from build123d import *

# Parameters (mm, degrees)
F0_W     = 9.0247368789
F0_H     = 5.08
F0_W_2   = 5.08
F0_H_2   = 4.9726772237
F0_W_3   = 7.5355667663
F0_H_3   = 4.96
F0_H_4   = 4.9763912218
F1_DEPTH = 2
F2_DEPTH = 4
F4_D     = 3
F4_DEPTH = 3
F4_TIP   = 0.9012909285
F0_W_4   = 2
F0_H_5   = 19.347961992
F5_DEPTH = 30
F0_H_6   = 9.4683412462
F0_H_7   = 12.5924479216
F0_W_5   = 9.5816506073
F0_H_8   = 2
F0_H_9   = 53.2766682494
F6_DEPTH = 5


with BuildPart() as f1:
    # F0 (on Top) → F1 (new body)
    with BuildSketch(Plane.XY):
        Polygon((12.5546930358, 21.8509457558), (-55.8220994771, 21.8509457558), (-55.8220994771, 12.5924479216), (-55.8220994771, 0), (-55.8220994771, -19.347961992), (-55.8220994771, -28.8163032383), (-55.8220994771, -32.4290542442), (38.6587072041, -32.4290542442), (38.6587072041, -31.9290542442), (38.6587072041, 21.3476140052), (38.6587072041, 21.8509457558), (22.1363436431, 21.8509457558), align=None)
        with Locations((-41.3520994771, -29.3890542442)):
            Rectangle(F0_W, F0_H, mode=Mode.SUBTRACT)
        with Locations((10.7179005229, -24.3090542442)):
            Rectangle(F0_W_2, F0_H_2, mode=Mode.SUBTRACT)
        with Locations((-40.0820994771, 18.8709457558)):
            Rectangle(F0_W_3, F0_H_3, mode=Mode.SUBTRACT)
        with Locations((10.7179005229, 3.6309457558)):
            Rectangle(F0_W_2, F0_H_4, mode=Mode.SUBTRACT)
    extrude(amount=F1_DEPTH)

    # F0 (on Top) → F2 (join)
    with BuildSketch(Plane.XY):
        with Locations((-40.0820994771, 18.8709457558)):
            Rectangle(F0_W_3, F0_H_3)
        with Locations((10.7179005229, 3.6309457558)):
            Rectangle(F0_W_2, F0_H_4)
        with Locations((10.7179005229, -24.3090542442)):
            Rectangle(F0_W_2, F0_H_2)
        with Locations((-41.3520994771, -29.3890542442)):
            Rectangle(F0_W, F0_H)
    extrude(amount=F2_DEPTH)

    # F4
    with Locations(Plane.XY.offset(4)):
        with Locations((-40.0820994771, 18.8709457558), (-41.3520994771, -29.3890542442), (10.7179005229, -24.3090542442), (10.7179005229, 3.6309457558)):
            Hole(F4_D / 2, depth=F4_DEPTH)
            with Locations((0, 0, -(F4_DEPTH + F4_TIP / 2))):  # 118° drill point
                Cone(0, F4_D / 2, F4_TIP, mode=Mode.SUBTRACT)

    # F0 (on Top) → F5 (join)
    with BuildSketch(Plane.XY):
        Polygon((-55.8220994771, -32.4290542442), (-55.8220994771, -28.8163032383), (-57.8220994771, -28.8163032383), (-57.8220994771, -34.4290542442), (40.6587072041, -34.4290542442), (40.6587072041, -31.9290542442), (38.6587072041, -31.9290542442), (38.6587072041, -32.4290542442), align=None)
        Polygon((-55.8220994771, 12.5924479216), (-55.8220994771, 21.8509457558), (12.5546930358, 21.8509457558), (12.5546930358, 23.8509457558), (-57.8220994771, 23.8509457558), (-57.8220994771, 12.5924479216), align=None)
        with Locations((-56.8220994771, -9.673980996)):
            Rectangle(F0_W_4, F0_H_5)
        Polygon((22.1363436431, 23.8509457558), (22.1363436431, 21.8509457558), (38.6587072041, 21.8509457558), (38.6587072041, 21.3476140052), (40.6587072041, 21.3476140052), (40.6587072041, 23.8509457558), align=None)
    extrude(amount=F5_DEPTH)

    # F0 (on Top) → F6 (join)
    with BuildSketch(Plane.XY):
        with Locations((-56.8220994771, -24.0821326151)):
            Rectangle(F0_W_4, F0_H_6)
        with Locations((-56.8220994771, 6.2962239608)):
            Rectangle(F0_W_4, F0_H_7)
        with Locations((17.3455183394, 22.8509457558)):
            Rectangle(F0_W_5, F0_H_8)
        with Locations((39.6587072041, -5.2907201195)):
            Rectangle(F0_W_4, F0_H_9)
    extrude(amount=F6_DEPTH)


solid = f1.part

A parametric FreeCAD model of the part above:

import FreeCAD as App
import Part
import Sketcher

V = App.Vector

doc = App.newDocument("Part")
body = doc.addObject("PartDesign::Body", "Body")

# Sketch on XY plane
sketch1 = body.newObject("Sketcher::SketchObject", "Sketch")
sketch1.AttachmentSupport = (doc.getObject("XY_Plane"), [""])
sketch1.MapMode = "FlatFace"
sketch1.addGeometry([
    Part.LineSegment(V(-55.822099, 21.850946, 0), V(-55.822099, -32.429054, 0)),  # 0
    Part.LineSegment(V(-55.822099, -32.429054, 0), V(38.658707, -32.429054, 0)),  # 1
    Part.LineSegment(V(38.658707, -32.429054, 0), V(38.658707, 21.850946, 0)),  # 2
    Part.LineSegment(V(38.658707, 21.850946, 0), V(-55.822099, 21.850946, 0)),  # 3
    Part.LineSegment(V(-36.839731, -31.929054, 0), V(-45.864468, -31.929054, 0)),  # 4
    Part.LineSegment(V(-45.864468, -31.929054, 0), V(-45.864468, -26.849054, 0)),  # 5
    Part.LineSegment(V(-45.864468, -26.849054, 0), V(-36.839731, -26.849054, 0)),  # 6
    Part.LineSegment(V(-36.839731, -26.849054, 0), V(-36.839731, -31.929054, 0)),  # 7
    Part.LineSegment(V(13.257901, -26.795393, 0), V(8.177901, -26.795393, 0)),  # 8
    Part.LineSegment(V(8.177901, -26.795393, 0), V(8.177901, -21.822716, 0)),  # 9
    Part.LineSegment(V(8.177901, -21.822716, 0), V(13.257901, -21.822716, 0)),  # 10
    Part.LineSegment(V(13.257901, -21.822716, 0), V(13.257901, -26.795393, 0)),  # 11
    Part.LineSegment(V(-36.314316, 16.390946, 0), V(-43.849883, 16.390946, 0)),  # 12
    Part.LineSegment(V(-43.849883, 16.390946, 0), V(-43.849883, 21.350946, 0)),  # 13
    Part.LineSegment(V(-43.849883, 21.350946, 0), V(-36.314316, 21.350946, 0)),  # 14
    Part.LineSegment(V(-36.314316, 21.350946, 0), V(-36.314316, 16.390946, 0)),  # 15
    Part.LineSegment(V(13.257901, 1.14275, 0), V(8.177901, 1.14275, 0)),  # 16
    Part.LineSegment(V(8.177901, 1.14275, 0), V(8.177901, 6.119141, 0)),  # 17
    Part.LineSegment(V(8.177901, 6.119141, 0), V(13.257901, 6.119141, 0)),  # 18
    Part.LineSegment(V(13.257901, 6.119141, 0), V(13.257901, 1.14275, 0)),  # 19
], False)
sketch1.addConstraint([
    Sketcher.Constraint("Coincident", 0, 2, 1, 1),
    Sketcher.Constraint("Coincident", 1, 2, 2, 1),
    Sketcher.Constraint("Coincident", 2, 2, 3, 1),
    Sketcher.Constraint("Coincident", 3, 2, 0, 1),
    Sketcher.Constraint("Coincident", 4, 2, 5, 1),
    Sketcher.Constraint("Coincident", 5, 2, 6, 1),
    Sketcher.Constraint("Coincident", 6, 2, 7, 1),
    Sketcher.Constraint("Coincident", 7, 2, 4, 1),
    Sketcher.Constraint("Coincident", 8, 2, 9, 1),
    Sketcher.Constraint("Coincident", 9, 2, 10, 1),
    Sketcher.Constraint("Coincident", 10, 2, 11, 1),
    Sketcher.Constraint("Coincident", 11, 2, 8, 1),
    Sketcher.Constraint("Coincident", 12, 2, 13, 1),
    Sketcher.Constraint("Coincident", 13, 2, 14, 1),
    Sketcher.Constraint("Coincident", 14, 2, 15, 1),
    Sketcher.Constraint("Coincident", 15, 2, 12, 1),
    Sketcher.Constraint("Coincident", 16, 2, 17, 1),
    Sketcher.Constraint("Coincident", 17, 2, 18, 1),
    Sketcher.Constraint("Coincident", 18, 2, 19, 1),
    Sketcher.Constraint("Coincident", 19, 2, 16, 1),
    Sketcher.Constraint("Vertical", 0),
    Sketcher.Constraint("Horizontal", 1),
    Sketcher.Constraint("Vertical", 2),
    Sketcher.Constraint("Horizontal", 3),
    Sketcher.Constraint("Horizontal", 4),
    Sketcher.Constraint("Vertical", 5),
    Sketcher.Constraint("Horizontal", 6),
    Sketcher.Constraint("Vertical", 7),
    Sketcher.Constraint("Horizontal", 8),
    Sketcher.Constraint("Vertical", 9),
    Sketcher.Constraint("Horizontal", 10),
    Sketcher.Constraint("Vertical", 11),
    Sketcher.Constraint("Horizontal", 12),
    Sketcher.Constraint("Vertical", 13),
    Sketcher.Constraint("Horizontal", 14),
    Sketcher.Constraint("Vertical", 15),
    Sketcher.Constraint("Horizontal", 16),
    Sketcher.Constraint("Vertical", 17),
    Sketcher.Constraint("Horizontal", 18),
    Sketcher.Constraint("Vertical", 19),
    Sketcher.Constraint("Vertical", 9, 2, 16, 2),
    Sketcher.Constraint("Vertical", 11, 2, 18, 2),
    Sketcher.Constraint("Equal", 18, 5),
    Sketcher.Constraint("DistanceX", 8, 2, 8, 1, 5.08),
    Sketcher.Constraint("DistanceY", 0, 2, 0, 1, 54.28),
    Sketcher.Constraint("DistanceY", 13, 1, 13, 2, 4.96),
    Sketcher.Constraint("DistanceY", 0, 2, 4, 2, 0.5),
    Sketcher.Constraint("DistanceY", 13, 2, 3, 2, 0.5),
    Sketcher.Constraint("DistanceY", 17, 1, 17, 2, 4.976391),
    Sketcher.Constraint("DistanceX", 0, 2, -1, 1, 55.822099),
    Sketcher.Constraint("DistanceX", -1, 1, 8, 2, 8.177901),
    Sketcher.Constraint("DistanceX", 1, 1, 1, 2, 94.480807),
    Sketcher.Constraint("DistanceX", 4, 2, 4, 1, 9.024737),
    Sketcher.Constraint("DistanceX", 12, 2, 12, 1, 7.535567),
    Sketcher.Constraint("DistanceY", 9, 1, 9, 2, 4.972677),
    Sketcher.Constraint("DistanceX", 6, 2, -1, 1, 36.839731),
    Sketcher.Constraint("DistanceY", -1, 1, 16, 2, 1.14275),
    Sketcher.Constraint("DistanceY", 1, 2, 8, 2, 5.633661),
    Sketcher.Constraint("DistanceX", 12, 2, 6, 2, 7.010152),
    Sketcher.Constraint("DistanceY", 0, 2, -1, 1, 32.429054),
])
pad1 = body.newObject("PartDesign::Pad", "Pad")
pad1.Profile = sketch1
pad1.Length = 2

# Sketch on XY plane
sketch2 = body.newObject("Sketcher::SketchObject", "Sketch001")
sketch2.AttachmentSupport = (doc.getObject("XY_Plane"), [""])
sketch2.MapMode = "FlatFace"
sketch2.addGeometry([
    Part.LineSegment(V(-43.849883, 21.350946, 0), V(-43.849883, 16.390946, 0)),  # 0
    Part.LineSegment(V(-43.849883, 16.390946, 0), V(-36.314316, 16.390946, 0)),  # 1
    Part.LineSegment(V(-36.314316, 16.390946, 0), V(-36.314316, 21.350946, 0)),  # 2
    Part.LineSegment(V(-36.314316, 21.350946, 0), V(-43.849883, 21.350946, 0)),  # 3
    Part.LineSegment(V(8.177901, 6.119141, 0), V(8.177901, 1.14275, 0)),  # 4
    Part.LineSegment(V(8.177901, 1.14275, 0), V(13.257901, 1.14275, 0)),  # 5
    Part.LineSegment(V(13.257901, 1.14275, 0), V(13.257901, 6.119141, 0)),  # 6
    Part.LineSegment(V(13.257901, 6.119141, 0), V(8.177901, 6.119141, 0)),  # 7
    Part.LineSegment(V(8.177901, -21.822716, 0), V(8.177901, -26.795393, 0)),  # 8
    Part.LineSegment(V(8.177901, -26.795393, 0), V(13.257901, -26.795393, 0)),  # 9
    Part.LineSegment(V(13.257901, -26.795393, 0), V(13.257901, -21.822716, 0)),  # 10
    Part.LineSegment(V(13.257901, -21.822716, 0), V(8.177901, -21.822716, 0)),  # 11
    Part.LineSegment(V(-45.864468, -26.849054, 0), V(-45.864468, -31.929054, 0)),  # 12
    Part.LineSegment(V(-45.864468, -31.929054, 0), V(-36.839731, -31.929054, 0)),  # 13
    Part.LineSegment(V(-36.839731, -31.929054, 0), V(-36.839731, -26.849054, 0)),  # 14
    Part.LineSegment(V(-36.839731, -26.849054, 0), V(-45.864468, -26.849054, 0)),  # 15
], False)
sketch2.addConstraint([
    Sketcher.Constraint("Coincident", 0, 2, 1, 1),
    Sketcher.Constraint("Coincident", 1, 2, 2, 1),
    Sketcher.Constraint("Coincident", 2, 2, 3, 1),
    Sketcher.Constraint("Coincident", 3, 2, 0, 1),
    Sketcher.Constraint("Coincident", 4, 2, 5, 1),
    Sketcher.Constraint("Coincident", 5, 2, 6, 1),
    Sketcher.Constraint("Coincident", 6, 2, 7, 1),
    Sketcher.Constraint("Coincident", 7, 2, 4, 1),
    Sketcher.Constraint("Coincident", 8, 2, 9, 1),
    Sketcher.Constraint("Coincident", 9, 2, 10, 1),
    Sketcher.Constraint("Coincident", 10, 2, 11, 1),
    Sketcher.Constraint("Coincident", 11, 2, 8, 1),
    Sketcher.Constraint("Coincident", 12, 2, 13, 1),
    Sketcher.Constraint("Coincident", 13, 2, 14, 1),
    Sketcher.Constraint("Coincident", 14, 2, 15, 1),
    Sketcher.Constraint("Coincident", 15, 2, 12, 1),
    Sketcher.Constraint("Vertical", 0),
    Sketcher.Constraint("Horizontal", 1),
    Sketcher.Constraint("Vertical", 2),
    Sketcher.Constraint("Horizontal", 3),
    Sketcher.Constraint("Vertical", 4),
    Sketcher.Constraint("Horizontal", 5),
    Sketcher.Constraint("Vertical", 6),
    Sketcher.Constraint("Horizontal", 7),
    Sketcher.Constraint("Vertical", 8),
    Sketcher.Constraint("Horizontal", 9),
    Sketcher.Constraint("Vertical", 10),
    Sketcher.Constraint("Horizontal", 11),
    Sketcher.Constraint("Vertical", 12),
    Sketcher.Constraint("Horizontal", 13),
    Sketcher.Constraint("Vertical", 14),
    Sketcher.Constraint("Horizontal", 15),
    Sketcher.Constraint("Vertical", 7, 2, 8, 2),
    Sketcher.Constraint("Vertical", 6, 2, 9, 2),
    Sketcher.Constraint("Equal", 11, 12),
    Sketcher.Constraint("DistanceX", 5, 1, 5, 2, 5.08),
    Sketcher.Constraint("DistanceY", 0, 2, 0, 1, 4.96),
    Sketcher.Constraint("DistanceY", 12, 2, 0, 2, 48.32),
    Sketcher.Constraint("DistanceY", 4, 2, 4, 1, 4.976391),
    Sketcher.Constraint("DistanceX", -1, 1, 4, 2, 8.177901),
    Sketcher.Constraint("DistanceX", 1, 1, 1, 2, 7.535567),
    Sketcher.Constraint("DistanceX", 13, 1, 13, 2, 9.024737),
    Sketcher.Constraint("DistanceY", 8, 2, 8, 1, 4.972677),
    Sketcher.Constraint("DistanceY", -1, 1, 4, 2, 1.14275),
    Sketcher.Constraint("DistanceX", 13, 2, -1, 1, 36.839731),
    Sketcher.Constraint("DistanceY", 8, 2, 1, 2, 43.186339),
    Sketcher.Constraint("DistanceX", 12, 2, 1, 2, 9.550152),
    Sketcher.Constraint("DistanceY", -1, 1, 0, 2, 16.390946),
])
pad2 = body.newObject("PartDesign::Pad", "Pad001")
pad2.Profile = sketch2
pad2.Length = 4

# Sketch on XY plane
sketch3 = body.newObject("Sketcher::SketchObject", "Sketch002")
sketch3.AttachmentSupport = (doc.getObject("XY_Plane"), [""])
sketch3.MapMode = "FlatFace"
sketch3.AttachmentOffset = App.Placement(V(0, 0, 4), App.Rotation())
sketch3.addGeometry([
    Part.Circle(V(-40.082099, 18.870946, 0), V(0, 0, 1), 1.5),
    Part.Circle(V(-41.352099, -29.389054, 0), V(0, 0, 1), 1.5),
    Part.Circle(V(10.717901, -24.309054, 0), V(0, 0, 1), 1.5),
    Part.Circle(V(10.717901, 3.630946, 0), V(0, 0, 1), 1.5),
], False)
sketch3.addConstraint([
    Sketcher.Constraint("Equal", 0, 1),
    Sketcher.Constraint("Equal", 1, 2),
    Sketcher.Constraint("Equal", 2, 3),
    Sketcher.Constraint("Vertical", 2, 3, 3, 3),
    Sketcher.Constraint("Diameter", 0, 3.0),
    Sketcher.Constraint("DistanceX", 0, 3, 2, 3, 50.8),
    Sketcher.Constraint("DistanceX", 1, 3, 0, 3, 1.27),
    Sketcher.Constraint("DistanceY", 1, 3, 0, 3, 48.26),
    Sketcher.Constraint("DistanceY", 1, 3, 2, 3, 5.08),
    Sketcher.Constraint("DistanceY", 2, 3, 3, 3, 27.94),
    Sketcher.Constraint("DistanceX", 0, 3, -1, 1, 40.082099),
    Sketcher.Constraint("DistanceY", -1, 1, 0, 3, 18.870946),
])
doc.recompute()
hole = body.newObject("PartDesign::Hole", "Hole")
hole.Profile = sketch3
hole.ThreadType = "None"
hole.Diameter = 3
hole.DepthType = "Dimension"
hole.Depth = 3
hole.DrillPoint = "Angled"
hole.DrillPointAngle = 118

# Sketch on XY plane
sketch4 = body.newObject("Sketcher::SketchObject", "Sketch003")
sketch4.AttachmentSupport = (doc.getObject("XY_Plane"), [""])
sketch4.MapMode = "FlatFace"
sketch4.addGeometry([
    Part.LineSegment(V(-55.822099, -32.429054, 0), V(-55.822099, -28.816303, 0)),  # 0
    Part.LineSegment(V(-55.822099, -28.816303, 0), V(-57.822099, -28.816303, 0)),  # 1
    Part.LineSegment(V(-57.822099, -28.816303, 0), V(-57.822099, -34.429054, 0)),  # 2
    Part.LineSegment(V(-57.822099, -34.429054, 0), V(40.658707, -34.429054, 0)),  # 3
    Part.LineSegment(V(40.658707, -34.429054, 0), V(40.658707, -31.929054, 0)),  # 4
    Part.LineSegment(V(40.658707, -31.929054, 0), V(38.658707, -31.929054, 0)),  # 5
    Part.LineSegment(V(38.658707, -31.929054, 0), V(38.658707, -32.429054, 0)),  # 6
    Part.LineSegment(V(38.658707, -32.429054, 0), V(-55.822099, -32.429054, 0)),  # 7
    Part.LineSegment(V(-55.822099, 12.592448, 0), V(-55.822099, 21.850946, 0)),  # 8
    Part.LineSegment(V(-55.822099, 21.850946, 0), V(12.554693, 21.850946, 0)),  # 9
    Part.LineSegment(V(12.554693, 21.850946, 0), V(12.554693, 23.850946, 0)),  # 10
    Part.LineSegment(V(12.554693, 23.850946, 0), V(-57.822099, 23.850946, 0)),  # 11
    Part.LineSegment(V(-57.822099, 23.850946, 0), V(-57.822099, 12.592448, 0)),  # 12
    Part.LineSegment(V(-57.822099, 12.592448, 0), V(-55.822099, 12.592448, 0)),  # 13
    Part.LineSegment(V(-57.822099, 0, 0), V(-57.822099, -19.347962, 0)),  # 14
    Part.LineSegment(V(-57.822099, -19.347962, 0), V(-55.822099, -19.347962, 0)),  # 15
    Part.LineSegment(V(-55.822099, -19.347962, 0), V(-55.822099, 0, 0)),  # 16
    Part.LineSegment(V(-55.822099, 0, 0), V(-57.822099, 0, 0)),  # 17
    Part.LineSegment(V(22.136344, 23.850946, 0), V(22.136344, 21.850946, 0)),  # 18
    Part.LineSegment(V(22.136344, 21.850946, 0), V(38.658707, 21.850946, 0)),  # 19
    Part.LineSegment(V(38.658707, 21.850946, 0), V(38.658707, 21.347614, 0)),  # 20
    Part.LineSegment(V(38.658707, 21.347614, 0), V(40.658707, 21.347614, 0)),  # 21
    Part.LineSegment(V(40.658707, 21.347614, 0), V(40.658707, 23.850946, 0)),  # 22
    Part.LineSegment(V(40.658707, 23.850946, 0), V(22.136344, 23.850946, 0)),  # 23
], False)
sketch4.addConstraint([
    Sketcher.Constraint("Coincident", 0, 2, 1, 1),
    Sketcher.Constraint("Coincident", 1, 2, 2, 1),
    Sketcher.Constraint("Coincident", 2, 2, 3, 1),
    Sketcher.Constraint("Coincident", 3, 2, 4, 1),
    Sketcher.Constraint("Coincident", 4, 2, 5, 1),
    Sketcher.Constraint("Coincident", 5, 2, 6, 1),
    Sketcher.Constraint("Coincident", 6, 2, 7, 1),
    Sketcher.Constraint("Coincident", 7, 2, 0, 1),
    Sketcher.Constraint("Coincident", 8, 2, 9, 1),
    Sketcher.Constraint("Coincident", 9, 2, 10, 1),
    Sketcher.Constraint("Coincident", 10, 2, 11, 1),
    Sketcher.Constraint("Coincident", 11, 2, 12, 1),
    Sketcher.Constraint("Coincident", 12, 2, 13, 1),
    Sketcher.Constraint("Coincident", 13, 2, 8, 1),
    Sketcher.Constraint("Coincident", 14, 2, 15, 1),
    Sketcher.Constraint("Coincident", 15, 2, 16, 1),
    Sketcher.Constraint("Coincident", 16, 2, 17, 1),
    Sketcher.Constraint("Coincident", 17, 2, 14, 1),
    Sketcher.Constraint("Coincident", 18, 2, 19, 1),
    Sketcher.Constraint("Coincident", 19, 2, 20, 1),
    Sketcher.Constraint("Coincident", 20, 2, 21, 1),
    Sketcher.Constraint("Coincident", 21, 2, 22, 1),
    Sketcher.Constraint("Coincident", 22, 2, 23, 1),
    Sketcher.Constraint("Coincident", 23, 2, 18, 1),
    Sketcher.Constraint("Vertical", 0),
    Sketcher.Constraint("Horizontal", 1),
    Sketcher.Constraint("Vertical", 2),
    Sketcher.Constraint("Horizontal", 3),
    Sketcher.Constraint("Vertical", 4),
    Sketcher.Constraint("Horizontal", 5),
    Sketcher.Constraint("Vertical", 6),
    Sketcher.Constraint("Horizontal", 7),
    Sketcher.Constraint("Vertical", 8),
    Sketcher.Constraint("Horizontal", 9),
    Sketcher.Constraint("Vertical", 10),
    Sketcher.Constraint("Horizontal", 11),
    Sketcher.Constraint("Vertical", 12),
    Sketcher.Constraint("Horizontal", 13),
    Sketcher.Constraint("Vertical", 14),
    Sketcher.Constraint("Horizontal", 15),
    Sketcher.Constraint("Vertical", 16),
    Sketcher.Constraint("Horizontal", 17),
    Sketcher.Constraint("Vertical", 18),
    Sketcher.Constraint("Horizontal", 19),
    Sketcher.Constraint("Vertical", 20),
    Sketcher.Constraint("Horizontal", 21),
    Sketcher.Constraint("Vertical", 22),
    Sketcher.Constraint("Horizontal", 23),
    Sketcher.Constraint("PointOnObject", 16, 2, -1),
    Sketcher.Constraint("Horizontal", 9, 2, 18, 2),
    Sketcher.Constraint("Horizontal", 11, 2, 22, 2),
    Sketcher.Constraint("Vertical", 7, 2, 8, 2),
    Sketcher.Constraint("Vertical", 2, 2, 11, 2),
    Sketcher.Constraint("Vertical", 12, 2, 14, 2),
    Sketcher.Constraint("Vertical", 13, 2, 15, 2),
    Sketcher.Constraint("Vertical", 6, 2, 19, 2),
    Sketcher.Constraint("Vertical", 4, 2, 21, 2),
    Sketcher.Constraint("Equal", 1, 5),
    Sketcher.Constraint("Equal", 21, 10),
    Sketcher.Constraint("DistanceX", 1, 2, 1, 1, 2.0),
    Sketcher.Constraint("DistanceY", 4, 1, 4, 2, 2.5),
    Sketcher.Constraint("DistanceY", 6, 2, 6, 1, 0.5),
    Sketcher.Constraint("DistanceY", 7, 2, 8, 2, 54.28),
    Sketcher.Constraint("DistanceY", 0, 1, 0, 2, 3.612751),
    Sketcher.Constraint("DistanceY", 14, 2, 14, 1, 19.347962),
    Sketcher.Constraint("DistanceY", 20, 2, 20, 1, 0.503332),
    Sketcher.Constraint("DistanceX", 0, 2, -1, 1, 55.822099),
    Sketcher.Constraint("DistanceX", 3, 1, 3, 2, 98.480807),
    Sketcher.Constraint("DistanceX", 9, 1, 9, 2, 68.376793),
    Sketcher.Constraint("DistanceX", 19, 1, 19, 2, 16.522364),
    Sketcher.Constraint("DistanceY", 8, 1, 8, 2, 9.258498),
    Sketcher.Constraint("DistanceY", 1, 2, 14, 2, 9.468341),
])
pad3 = body.newObject("PartDesign::Pad", "Pad002")
pad3.Profile = sketch4
pad3.Length = 30

# Sketch on XY plane
sketch5 = body.newObject("Sketcher::SketchObject", "Sketch004")
sketch5.AttachmentSupport = (doc.getObject("XY_Plane"), [""])
sketch5.MapMode = "FlatFace"
sketch5.addGeometry([
    Part.LineSegment(V(-57.822099, -19.347962, 0), V(-57.822099, -28.816303, 0)),  # 0
    Part.LineSegment(V(-57.822099, -28.816303, 0), V(-55.822099, -28.816303, 0)),  # 1
    Part.LineSegment(V(-55.822099, -28.816303, 0), V(-55.822099, -19.347962, 0)),  # 2
    Part.LineSegment(V(-55.822099, -19.347962, 0), V(-57.822099, -19.347962, 0)),  # 3
    Part.LineSegment(V(-57.822099, 12.592448, 0), V(-57.822099, 0, 0)),  # 4
    Part.LineSegment(V(-57.822099, 0, 0), V(-55.822099, 0, 0)),  # 5
    Part.LineSegment(V(-55.822099, 0, 0), V(-55.822099, 12.592448, 0)),  # 6
    Part.LineSegment(V(-55.822099, 12.592448, 0), V(-57.822099, 12.592448, 0)),  # 7
    Part.LineSegment(V(12.554693, 23.850946, 0), V(12.554693, 21.850946, 0)),  # 8
    Part.LineSegment(V(12.554693, 21.850946, 0), V(22.136344, 21.850946, 0)),  # 9
    Part.LineSegment(V(22.136344, 21.850946, 0), V(22.136344, 23.850946, 0)),  # 10
    Part.LineSegment(V(22.136344, 23.850946, 0), V(12.554693, 23.850946, 0)),  # 11
    Part.LineSegment(V(38.658707, 21.347614, 0), V(38.658707, -31.929054, 0)),  # 12
    Part.LineSegment(V(38.658707, -31.929054, 0), V(40.658707, -31.929054, 0)),  # 13
    Part.LineSegment(V(40.658707, -31.929054, 0), V(40.658707, 21.347614, 0)),  # 14
    Part.LineSegment(V(40.658707, 21.347614, 0), V(38.658707, 21.347614, 0)),  # 15
], False)
sketch5.addConstraint([
    Sketcher.Constraint("Coincident", 0, 2, 1, 1),
    Sketcher.Constraint("Coincident", 1, 2, 2, 1),
    Sketcher.Constraint("Coincident", 2, 2, 3, 1),
    Sketcher.Constraint("Coincident", 3, 2, 0, 1),
    Sketcher.Constraint("Coincident", 4, 2, 5, 1),
    Sketcher.Constraint("Coincident", 5, 2, 6, 1),
    Sketcher.Constraint("Coincident", 6, 2, 7, 1),
    Sketcher.Constraint("Coincident", 7, 2, 4, 1),
    Sketcher.Constraint("Coincident", 8, 2, 9, 1),
    Sketcher.Constraint("Coincident", 9, 2, 10, 1),
    Sketcher.Constraint("Coincident", 10, 2, 11, 1),
    Sketcher.Constraint("Coincident", 11, 2, 8, 1),
    Sketcher.Constraint("Coincident", 12, 2, 13, 1),
    Sketcher.Constraint("Coincident", 13, 2, 14, 1),
    Sketcher.Constraint("Coincident", 14, 2, 15, 1),
    Sketcher.Constraint("Coincident", 15, 2, 12, 1),
    Sketcher.Constraint("Vertical", 0),
    Sketcher.Constraint("Horizontal", 1),
    Sketcher.Constraint("Vertical", 2),
    Sketcher.Constraint("Horizontal", 3),
    Sketcher.Constraint("Vertical", 4),
    Sketcher.Constraint("Horizontal", 5),
    Sketcher.Constraint("Vertical", 6),
    Sketcher.Constraint("Horizontal", 7),
    Sketcher.Constraint("Vertical", 8),
    Sketcher.Constraint("Horizontal", 9),
    Sketcher.Constraint("Vertical", 10),
    Sketcher.Constraint("Horizontal", 11),
    Sketcher.Constraint("Vertical", 12),
    Sketcher.Constraint("Horizontal", 13),
    Sketcher.Constraint("Vertical", 14),
    Sketcher.Constraint("Horizontal", 15),
    Sketcher.Constraint("PointOnObject", 4, 2, -1),
    Sketcher.Constraint("Vertical", 3, 2, 4, 2),
    Sketcher.Constraint("Vertical", 2, 2, 5, 2),
    Sketcher.Constraint("Equal", 7, 13),
    Sketcher.Constraint("Equal", 15, 8),
    Sketcher.Constraint("DistanceX", 1, 1, 1, 2, 2.0),
    Sketcher.Constraint("DistanceY", 12, 2, 9, 2, 53.78),
    Sketcher.Constraint("DistanceX", 9, 1, 9, 2, 9.581651),
    Sketcher.Constraint("DistanceY", 0, 2, 0, 1, 9.468341),
    Sketcher.Constraint("DistanceY", 12, 2, 12, 1, 53.276668),
    Sketcher.Constraint("DistanceX", 0, 2, -1, 1, 57.822099),
    Sketcher.Constraint("DistanceY", 4, 2, 4, 1, 12.592448),
    Sketcher.Constraint("DistanceY", 2, 2, -1, 1, 19.347962),
    Sketcher.Constraint("DistanceY", 12, 2, 1, 2, 3.112751),
    Sketcher.Constraint("DistanceX", -1, 1, 8, 2, 12.554693),
    Sketcher.Constraint("DistanceX", -1, 1, 12, 2, 38.658707),
])
pad4 = body.newObject("PartDesign::Pad", "Pad003")
pad4.Profile = sketch5
pad4.Length = 5

doc.recompute()
